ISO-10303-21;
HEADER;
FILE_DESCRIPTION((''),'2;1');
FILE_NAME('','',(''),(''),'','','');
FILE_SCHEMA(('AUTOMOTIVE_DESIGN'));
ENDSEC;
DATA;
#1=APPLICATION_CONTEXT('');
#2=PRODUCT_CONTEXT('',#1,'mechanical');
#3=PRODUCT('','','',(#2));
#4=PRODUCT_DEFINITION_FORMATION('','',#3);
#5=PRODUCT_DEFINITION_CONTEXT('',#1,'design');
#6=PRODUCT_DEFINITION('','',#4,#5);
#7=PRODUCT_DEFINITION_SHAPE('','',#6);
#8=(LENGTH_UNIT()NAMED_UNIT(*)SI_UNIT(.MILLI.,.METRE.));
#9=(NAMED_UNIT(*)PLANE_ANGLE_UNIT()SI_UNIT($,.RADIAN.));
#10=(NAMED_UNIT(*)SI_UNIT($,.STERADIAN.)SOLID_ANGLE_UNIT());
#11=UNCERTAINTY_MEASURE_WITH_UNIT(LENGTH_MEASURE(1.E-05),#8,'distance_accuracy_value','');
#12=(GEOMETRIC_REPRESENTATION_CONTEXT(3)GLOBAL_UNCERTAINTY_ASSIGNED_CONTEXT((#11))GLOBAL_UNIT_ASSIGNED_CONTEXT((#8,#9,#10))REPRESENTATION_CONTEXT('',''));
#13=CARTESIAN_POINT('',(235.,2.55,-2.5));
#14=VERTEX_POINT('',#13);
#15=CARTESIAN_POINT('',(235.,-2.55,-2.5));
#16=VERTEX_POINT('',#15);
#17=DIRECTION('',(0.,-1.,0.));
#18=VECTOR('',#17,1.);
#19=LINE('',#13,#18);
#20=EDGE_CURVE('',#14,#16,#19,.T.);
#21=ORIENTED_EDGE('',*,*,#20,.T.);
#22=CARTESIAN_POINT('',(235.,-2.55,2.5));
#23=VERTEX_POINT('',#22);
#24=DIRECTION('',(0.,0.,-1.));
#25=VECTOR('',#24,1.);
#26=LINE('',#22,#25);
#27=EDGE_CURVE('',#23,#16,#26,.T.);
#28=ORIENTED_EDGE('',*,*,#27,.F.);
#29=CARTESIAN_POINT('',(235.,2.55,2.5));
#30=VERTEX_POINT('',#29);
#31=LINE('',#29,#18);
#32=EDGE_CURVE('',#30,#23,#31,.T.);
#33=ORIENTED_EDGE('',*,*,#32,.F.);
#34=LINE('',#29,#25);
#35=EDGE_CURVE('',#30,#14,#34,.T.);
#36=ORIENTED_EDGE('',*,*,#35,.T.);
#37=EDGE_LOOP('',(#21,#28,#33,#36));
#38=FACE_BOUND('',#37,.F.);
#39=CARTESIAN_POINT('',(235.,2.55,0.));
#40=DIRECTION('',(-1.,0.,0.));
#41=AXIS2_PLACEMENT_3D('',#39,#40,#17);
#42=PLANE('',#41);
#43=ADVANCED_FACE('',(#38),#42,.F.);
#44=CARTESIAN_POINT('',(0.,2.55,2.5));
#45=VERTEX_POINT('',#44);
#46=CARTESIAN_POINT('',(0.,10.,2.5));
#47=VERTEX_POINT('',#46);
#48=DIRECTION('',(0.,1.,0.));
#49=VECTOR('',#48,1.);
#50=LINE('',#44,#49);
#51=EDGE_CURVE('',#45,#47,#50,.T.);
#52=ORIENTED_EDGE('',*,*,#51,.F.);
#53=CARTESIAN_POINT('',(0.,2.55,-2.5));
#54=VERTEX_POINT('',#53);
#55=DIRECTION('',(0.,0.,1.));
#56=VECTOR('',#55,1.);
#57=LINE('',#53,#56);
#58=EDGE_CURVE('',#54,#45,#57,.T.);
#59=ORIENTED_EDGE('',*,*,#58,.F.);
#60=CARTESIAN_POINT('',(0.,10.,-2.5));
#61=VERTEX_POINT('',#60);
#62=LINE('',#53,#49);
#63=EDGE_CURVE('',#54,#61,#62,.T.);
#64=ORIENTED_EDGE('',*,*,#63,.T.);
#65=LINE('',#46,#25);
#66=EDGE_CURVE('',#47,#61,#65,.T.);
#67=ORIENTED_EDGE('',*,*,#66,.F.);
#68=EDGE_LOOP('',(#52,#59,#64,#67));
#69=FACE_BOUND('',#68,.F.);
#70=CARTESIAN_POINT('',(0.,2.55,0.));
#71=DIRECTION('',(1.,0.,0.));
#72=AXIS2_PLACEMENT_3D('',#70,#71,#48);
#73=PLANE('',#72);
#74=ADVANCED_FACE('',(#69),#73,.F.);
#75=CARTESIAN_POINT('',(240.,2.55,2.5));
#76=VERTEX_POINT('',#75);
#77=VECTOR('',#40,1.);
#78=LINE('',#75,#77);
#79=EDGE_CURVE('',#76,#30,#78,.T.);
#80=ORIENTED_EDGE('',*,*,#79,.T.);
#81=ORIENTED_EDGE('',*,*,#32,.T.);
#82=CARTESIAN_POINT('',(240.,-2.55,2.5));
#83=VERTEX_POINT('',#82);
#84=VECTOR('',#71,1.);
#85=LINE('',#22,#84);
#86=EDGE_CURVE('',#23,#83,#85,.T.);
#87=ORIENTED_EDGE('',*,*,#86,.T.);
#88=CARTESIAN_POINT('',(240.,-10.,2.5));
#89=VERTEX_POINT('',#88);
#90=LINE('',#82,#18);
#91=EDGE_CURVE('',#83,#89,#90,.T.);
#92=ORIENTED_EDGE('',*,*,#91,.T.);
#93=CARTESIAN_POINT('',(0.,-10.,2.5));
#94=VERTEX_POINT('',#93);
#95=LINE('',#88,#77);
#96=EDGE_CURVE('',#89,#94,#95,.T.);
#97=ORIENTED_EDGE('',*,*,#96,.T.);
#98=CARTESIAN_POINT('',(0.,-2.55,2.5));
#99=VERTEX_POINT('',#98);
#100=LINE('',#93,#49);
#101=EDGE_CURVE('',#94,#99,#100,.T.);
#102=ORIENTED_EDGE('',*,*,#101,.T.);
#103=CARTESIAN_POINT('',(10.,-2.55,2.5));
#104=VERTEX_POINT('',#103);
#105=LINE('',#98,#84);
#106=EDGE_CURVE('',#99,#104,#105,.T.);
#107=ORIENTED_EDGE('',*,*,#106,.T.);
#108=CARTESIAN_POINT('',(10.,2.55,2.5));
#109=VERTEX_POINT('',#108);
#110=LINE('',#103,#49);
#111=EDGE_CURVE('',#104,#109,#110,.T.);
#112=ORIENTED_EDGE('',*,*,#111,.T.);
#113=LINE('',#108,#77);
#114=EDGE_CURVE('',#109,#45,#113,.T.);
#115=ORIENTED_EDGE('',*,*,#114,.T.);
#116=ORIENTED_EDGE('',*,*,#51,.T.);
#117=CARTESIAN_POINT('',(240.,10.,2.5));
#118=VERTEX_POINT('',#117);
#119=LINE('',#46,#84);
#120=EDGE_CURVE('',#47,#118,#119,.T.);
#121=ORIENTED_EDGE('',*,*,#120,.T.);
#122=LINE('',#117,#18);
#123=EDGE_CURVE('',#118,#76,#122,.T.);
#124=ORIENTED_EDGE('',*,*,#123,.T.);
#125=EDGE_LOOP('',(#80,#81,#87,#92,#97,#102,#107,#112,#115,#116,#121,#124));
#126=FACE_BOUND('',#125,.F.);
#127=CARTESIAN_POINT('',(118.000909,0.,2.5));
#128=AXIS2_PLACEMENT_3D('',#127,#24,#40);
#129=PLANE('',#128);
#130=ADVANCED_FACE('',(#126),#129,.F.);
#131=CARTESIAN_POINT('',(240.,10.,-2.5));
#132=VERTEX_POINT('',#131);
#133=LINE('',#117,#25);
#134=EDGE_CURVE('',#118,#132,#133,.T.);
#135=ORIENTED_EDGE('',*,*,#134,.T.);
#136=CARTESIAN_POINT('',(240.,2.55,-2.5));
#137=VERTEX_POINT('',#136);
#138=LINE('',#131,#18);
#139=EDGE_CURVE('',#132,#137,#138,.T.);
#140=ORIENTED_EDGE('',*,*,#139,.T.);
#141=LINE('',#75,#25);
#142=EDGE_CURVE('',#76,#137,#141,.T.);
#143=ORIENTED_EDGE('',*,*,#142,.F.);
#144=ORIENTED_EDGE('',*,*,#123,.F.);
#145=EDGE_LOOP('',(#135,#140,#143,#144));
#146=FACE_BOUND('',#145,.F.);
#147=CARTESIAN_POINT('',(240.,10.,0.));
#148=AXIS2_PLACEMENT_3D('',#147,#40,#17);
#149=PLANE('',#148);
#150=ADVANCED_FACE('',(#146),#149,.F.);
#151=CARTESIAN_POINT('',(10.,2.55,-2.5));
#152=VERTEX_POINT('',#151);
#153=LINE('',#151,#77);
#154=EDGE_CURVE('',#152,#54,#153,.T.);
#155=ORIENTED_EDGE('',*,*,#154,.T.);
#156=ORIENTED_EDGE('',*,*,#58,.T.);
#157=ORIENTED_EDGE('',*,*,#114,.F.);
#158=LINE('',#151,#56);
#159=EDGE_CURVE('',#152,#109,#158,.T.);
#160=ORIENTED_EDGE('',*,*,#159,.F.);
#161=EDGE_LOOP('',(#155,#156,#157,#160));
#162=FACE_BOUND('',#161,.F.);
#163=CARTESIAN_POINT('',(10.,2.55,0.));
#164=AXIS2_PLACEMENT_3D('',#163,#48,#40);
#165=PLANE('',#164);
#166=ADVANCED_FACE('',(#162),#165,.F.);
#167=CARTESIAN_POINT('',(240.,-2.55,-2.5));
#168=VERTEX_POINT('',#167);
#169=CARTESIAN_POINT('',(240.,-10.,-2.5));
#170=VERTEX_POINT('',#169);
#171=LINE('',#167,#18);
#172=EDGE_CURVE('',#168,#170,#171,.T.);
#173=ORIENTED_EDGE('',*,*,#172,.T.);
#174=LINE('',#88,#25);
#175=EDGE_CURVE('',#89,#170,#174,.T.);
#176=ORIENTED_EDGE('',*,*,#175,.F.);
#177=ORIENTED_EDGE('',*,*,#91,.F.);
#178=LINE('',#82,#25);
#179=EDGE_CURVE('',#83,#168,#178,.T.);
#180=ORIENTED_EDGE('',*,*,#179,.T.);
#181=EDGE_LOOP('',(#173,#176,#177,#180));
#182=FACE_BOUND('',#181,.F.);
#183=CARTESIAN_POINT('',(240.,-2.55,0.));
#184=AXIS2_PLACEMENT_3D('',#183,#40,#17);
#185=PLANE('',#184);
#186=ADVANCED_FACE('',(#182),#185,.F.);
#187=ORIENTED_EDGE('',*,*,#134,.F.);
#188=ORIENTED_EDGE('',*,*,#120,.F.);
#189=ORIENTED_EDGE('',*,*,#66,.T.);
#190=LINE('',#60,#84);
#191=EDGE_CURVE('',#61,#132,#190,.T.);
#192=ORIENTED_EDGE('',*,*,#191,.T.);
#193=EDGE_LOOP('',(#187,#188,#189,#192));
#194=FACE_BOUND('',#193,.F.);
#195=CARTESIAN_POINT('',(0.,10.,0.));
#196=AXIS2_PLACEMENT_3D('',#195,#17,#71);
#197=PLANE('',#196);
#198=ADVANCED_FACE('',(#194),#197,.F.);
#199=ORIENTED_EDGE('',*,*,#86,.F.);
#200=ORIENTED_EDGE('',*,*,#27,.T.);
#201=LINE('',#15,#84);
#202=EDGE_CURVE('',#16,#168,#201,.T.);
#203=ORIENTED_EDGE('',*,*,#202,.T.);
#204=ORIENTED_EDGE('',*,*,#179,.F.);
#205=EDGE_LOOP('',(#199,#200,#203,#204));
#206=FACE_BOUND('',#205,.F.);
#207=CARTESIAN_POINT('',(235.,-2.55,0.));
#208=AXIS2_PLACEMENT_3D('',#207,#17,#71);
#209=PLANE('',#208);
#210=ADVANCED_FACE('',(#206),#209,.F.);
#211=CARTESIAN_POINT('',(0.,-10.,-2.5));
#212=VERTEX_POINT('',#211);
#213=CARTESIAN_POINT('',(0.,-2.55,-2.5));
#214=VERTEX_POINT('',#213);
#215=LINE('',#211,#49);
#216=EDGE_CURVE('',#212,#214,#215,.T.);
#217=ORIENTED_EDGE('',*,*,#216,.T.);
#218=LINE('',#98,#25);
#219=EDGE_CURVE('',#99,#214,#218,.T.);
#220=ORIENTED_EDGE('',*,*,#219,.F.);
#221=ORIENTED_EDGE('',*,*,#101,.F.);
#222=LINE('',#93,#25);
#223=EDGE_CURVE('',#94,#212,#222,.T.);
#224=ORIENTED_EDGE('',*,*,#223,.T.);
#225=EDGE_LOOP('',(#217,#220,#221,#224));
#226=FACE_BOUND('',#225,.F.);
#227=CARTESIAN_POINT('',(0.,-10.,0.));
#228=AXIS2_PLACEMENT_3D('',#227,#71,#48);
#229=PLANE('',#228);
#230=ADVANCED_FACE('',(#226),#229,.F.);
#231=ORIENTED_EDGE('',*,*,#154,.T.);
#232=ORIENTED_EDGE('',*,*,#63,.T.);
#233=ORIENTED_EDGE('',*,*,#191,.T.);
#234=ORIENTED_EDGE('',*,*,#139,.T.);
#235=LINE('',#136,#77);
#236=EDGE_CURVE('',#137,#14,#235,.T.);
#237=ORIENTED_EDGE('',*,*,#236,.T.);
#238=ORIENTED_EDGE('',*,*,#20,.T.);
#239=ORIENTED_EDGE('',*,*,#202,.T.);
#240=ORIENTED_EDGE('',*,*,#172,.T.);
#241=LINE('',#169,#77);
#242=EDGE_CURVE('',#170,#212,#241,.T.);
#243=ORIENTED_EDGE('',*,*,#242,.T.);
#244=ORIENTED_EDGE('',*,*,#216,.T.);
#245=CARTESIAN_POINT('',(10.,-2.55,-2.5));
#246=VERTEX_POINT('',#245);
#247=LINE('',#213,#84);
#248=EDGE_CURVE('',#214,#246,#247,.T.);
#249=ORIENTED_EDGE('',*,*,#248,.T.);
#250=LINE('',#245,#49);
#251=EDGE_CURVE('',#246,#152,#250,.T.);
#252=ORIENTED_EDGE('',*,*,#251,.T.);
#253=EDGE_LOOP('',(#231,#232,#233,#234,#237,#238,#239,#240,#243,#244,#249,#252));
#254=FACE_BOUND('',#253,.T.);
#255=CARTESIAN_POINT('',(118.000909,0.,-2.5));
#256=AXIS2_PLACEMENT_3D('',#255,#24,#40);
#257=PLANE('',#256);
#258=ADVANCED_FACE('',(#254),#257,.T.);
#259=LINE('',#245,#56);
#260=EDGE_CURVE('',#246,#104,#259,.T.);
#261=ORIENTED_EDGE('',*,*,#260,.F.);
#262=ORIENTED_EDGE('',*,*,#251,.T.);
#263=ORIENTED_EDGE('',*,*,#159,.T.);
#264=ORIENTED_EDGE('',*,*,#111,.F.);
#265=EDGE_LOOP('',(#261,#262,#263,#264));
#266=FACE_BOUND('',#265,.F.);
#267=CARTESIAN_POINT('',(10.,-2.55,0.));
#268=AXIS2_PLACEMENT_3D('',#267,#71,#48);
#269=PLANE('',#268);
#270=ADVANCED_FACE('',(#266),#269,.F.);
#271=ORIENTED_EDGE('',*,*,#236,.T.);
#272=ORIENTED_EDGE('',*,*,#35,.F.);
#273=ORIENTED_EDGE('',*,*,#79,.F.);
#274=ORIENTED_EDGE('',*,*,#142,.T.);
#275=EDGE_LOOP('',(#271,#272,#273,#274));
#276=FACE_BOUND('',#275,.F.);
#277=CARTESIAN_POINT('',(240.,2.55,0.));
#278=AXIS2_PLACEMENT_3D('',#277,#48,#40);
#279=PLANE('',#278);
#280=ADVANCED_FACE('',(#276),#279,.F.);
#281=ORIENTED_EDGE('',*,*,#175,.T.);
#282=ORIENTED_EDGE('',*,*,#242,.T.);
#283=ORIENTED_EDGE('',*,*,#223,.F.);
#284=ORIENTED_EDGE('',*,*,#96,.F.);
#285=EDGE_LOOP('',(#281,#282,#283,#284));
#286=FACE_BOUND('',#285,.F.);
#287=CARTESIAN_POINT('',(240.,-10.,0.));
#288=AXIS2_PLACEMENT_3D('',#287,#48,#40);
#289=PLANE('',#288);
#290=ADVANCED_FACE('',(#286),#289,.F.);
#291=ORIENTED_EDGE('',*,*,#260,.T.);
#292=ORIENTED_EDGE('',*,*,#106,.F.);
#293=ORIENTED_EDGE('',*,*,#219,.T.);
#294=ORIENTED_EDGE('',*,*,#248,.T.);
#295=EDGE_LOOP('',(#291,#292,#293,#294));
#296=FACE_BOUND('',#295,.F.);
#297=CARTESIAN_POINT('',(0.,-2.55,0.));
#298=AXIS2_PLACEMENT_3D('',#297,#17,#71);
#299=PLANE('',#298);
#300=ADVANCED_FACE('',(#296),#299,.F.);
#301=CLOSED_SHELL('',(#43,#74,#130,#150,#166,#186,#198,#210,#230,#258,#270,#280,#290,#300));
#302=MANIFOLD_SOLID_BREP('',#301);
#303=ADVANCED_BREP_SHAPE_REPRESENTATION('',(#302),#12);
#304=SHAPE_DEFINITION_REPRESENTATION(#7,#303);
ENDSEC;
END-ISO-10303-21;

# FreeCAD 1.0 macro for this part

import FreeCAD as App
import Part
import Sketcher

V = App.Vector
Q = App.Units.Quantity


def add_polygon(sketch, points):
    """Adds a closed chain of lines whose ends are joined by coincident constraints."""
    first, n = sketch.GeometryCount, len(points)
    for a, b in zip(points, points[1:] + points[:1]):
        sketch.addGeometry(Part.LineSegment(App.Vector(*a, 0), App.Vector(*b, 0)), False)
    for i in range(n):
        sketch.addConstraint(Sketcher.Constraint("Coincident", first + i, 2, first + (i + 1) % n, 1))

doc = App.newDocument("Part")
body = doc.addObject("PartDesign::Body", "Body")

# Sketch on XY plane
sketch1 = body.newObject("Sketcher::SketchObject", "Sketch")
sketch1.AttachmentSupport = (doc.getObject("XY_Plane"), [""])
sketch1.MapMode = "FlatFace"
add_polygon(sketch1, [(0, 10), (0, 2.55), (10, 2.55), (10, -2.55), (0, -2.55), (0, -10), (240, -10), (240, -2.55), (235, -2.55), (235, 2.55), (240, 2.55), (240, 10)])  # lines 0-11
sketch1.addConstraint([
    Sketcher.Constraint("Vertical", 0),
    Sketcher.Constraint("Horizontal", 1),
    Sketcher.Constraint("Vertical", 2),
    Sketcher.Constraint("Horizontal", 3),
    Sketcher.Constraint("Vertical", 4),
    Sketcher.Constraint("Horizontal", 5),
    Sketcher.Constraint("Vertical", 6),
    Sketcher.Constraint("Horizontal", 7),
    Sketcher.Constraint("Vertical", 8),
    Sketcher.Constraint("Horizontal", 9),
    Sketcher.Constraint("Vertical", 10),
    Sketcher.Constraint("Horizontal", 11),
    Sketcher.Constraint("Symmetric", 0, 2, 3, 2, -1, 1),
    Sketcher.Constraint("Symmetric", 6, 2, 9, 2, -1),
    Sketcher.Constraint("Symmetric", 4, 2, 11, 2, -1),
    Sketcher.Constraint("Horizontal", 3, 2, 6, 2),
    Sketcher.Constraint("DistanceX", 1, 1, 1, 2, Q("10 mm")),
    Sketcher.Constraint("DistanceX", 5, 1, 5, 2, Q("240 mm")),
    Sketcher.Constraint("DistanceX", 7, 2, 7, 1, Q("5 mm")),
    Sketcher.Constraint("DistanceY", 2, 2, 2, 1, Q("5.1 mm")),
    Sketcher.Constraint("DistanceY", 4, 2, -1, 1, Q("10 mm")),
])
pad1 = body.newObject("PartDesign::Pad", "Pad")
pad1.Profile = sketch1
pad1.Length = 5
pad1.Midplane = True

doc.recompute()
